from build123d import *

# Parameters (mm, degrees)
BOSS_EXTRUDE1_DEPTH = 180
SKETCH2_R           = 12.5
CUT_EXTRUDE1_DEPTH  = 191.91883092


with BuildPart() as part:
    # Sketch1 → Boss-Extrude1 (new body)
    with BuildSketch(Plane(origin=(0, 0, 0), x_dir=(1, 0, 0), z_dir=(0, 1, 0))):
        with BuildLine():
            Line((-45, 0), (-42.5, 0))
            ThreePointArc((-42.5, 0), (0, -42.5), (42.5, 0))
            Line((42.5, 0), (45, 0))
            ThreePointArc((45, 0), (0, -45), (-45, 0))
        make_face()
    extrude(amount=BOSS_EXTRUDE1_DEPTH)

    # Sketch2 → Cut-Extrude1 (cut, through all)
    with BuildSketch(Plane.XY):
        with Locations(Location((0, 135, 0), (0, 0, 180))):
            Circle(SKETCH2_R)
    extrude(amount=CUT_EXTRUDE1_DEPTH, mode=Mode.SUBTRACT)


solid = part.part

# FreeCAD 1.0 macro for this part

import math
import FreeCAD as App
import Part
import Sketcher

V = App.Vector
Q = App.Units.Quantity

doc = App.newDocument("Part")
body = doc.addObject("PartDesign::Body", "Body")

sketch1 = doc.addObject("Sketcher::SketchObject", "Sketch")
body.addObject(sketch1)
sketch1.AttachmentSupport = (doc.XZ_Plane, [""])
sketch1.MapMode = "FlatFace"
sketch1.addGeometry(Part.LineSegment(V(-42.5, 0, 0), V(-45, 0, 0)), False)
sketch1.addGeometry(Part.ArcOfCircle(Part.Circle(V(0, 0, 0), V(0, 0, 1), 45), math.radians(0), math.radians(180)), False)
sketch1.addGeometry(Part.LineSegment(V(45, 0, 0), V(42.5, 0, 0)), False)
sketch1.addGeometry(Part.ArcOfCircle(Part.Circle(V(0, 0, 0), V(0, 0, 1), 42.5), math.radians(0), math.radians(180)), False)
sketch1.addConstraint(Sketcher.Constraint("Coincident", 0, 2, 1, 2))
sketch1.addConstraint(Sketcher.Constraint("Coincident", 1, 1, 2, 1))
sketch1.addConstraint(Sketcher.Constraint("Coincident", 2, 2, 3, 1))
sketch1.addConstraint(Sketcher.Constraint("Coincident", 3, 2, 0, 1))
sketch1.addConstraint(Sketcher.Constraint("Horizontal", 0))
sketch1.addConstraint(Sketcher.Constraint("Horizontal", 2))
sketch1.addConstraint(Sketcher.Constraint("Coincident", 1, 3, -1, 1))
sketch1.addConstraint(Sketcher.Constraint("Coincident", 3, 3, -1, 1))
sketch1.addConstraint(Sketcher.Constraint("PointOnObject", 0, 2, -1))
sketch1.addConstraint(Sketcher.Constraint("PointOnObject", 1, 1, -1))
sketch1.addConstraint(Sketcher.Constraint("Radius", 1, Q("45 mm")))
sketch1.addConstraint(Sketcher.Constraint("Radius", 3, Q("42.5 mm")))
pad1 = doc.addObject("PartDesign::Pad", "Pad")
body.addObject(pad1)
pad1.Profile = sketch1
pad1.Length = 180
pad1.Reversed = True

sketch2 = doc.addObject("Sketcher::SketchObject", "Sketch001")
body.addObject(sketch2)
sketch2.AttachmentSupport = (doc.XY_Plane, [""])
sketch2.MapMode = "FlatFace"
sketch2.addGeometry(Part.Circle(V(0, 135, 0), V(0, 0, 1), 12.5), False)
sketch2.addConstraint(Sketcher.Constraint("PointOnObject", 0, 3, -2))
sketch2.addConstraint(Sketcher.Constraint("Diameter", 0, Q("25 mm")))
sketch2.addConstraint(Sketcher.Constraint("DistanceY", -1, 1, 0, 3, Q("135 mm")))
pocket1 = doc.addObject("PartDesign::Pocket", "Pocket")
body.addObject(pocket1)
pocket1.Profile = sketch2
pocket1.Type = "ThroughAll"
pocket1.Reversed = True

doc.recompute()
